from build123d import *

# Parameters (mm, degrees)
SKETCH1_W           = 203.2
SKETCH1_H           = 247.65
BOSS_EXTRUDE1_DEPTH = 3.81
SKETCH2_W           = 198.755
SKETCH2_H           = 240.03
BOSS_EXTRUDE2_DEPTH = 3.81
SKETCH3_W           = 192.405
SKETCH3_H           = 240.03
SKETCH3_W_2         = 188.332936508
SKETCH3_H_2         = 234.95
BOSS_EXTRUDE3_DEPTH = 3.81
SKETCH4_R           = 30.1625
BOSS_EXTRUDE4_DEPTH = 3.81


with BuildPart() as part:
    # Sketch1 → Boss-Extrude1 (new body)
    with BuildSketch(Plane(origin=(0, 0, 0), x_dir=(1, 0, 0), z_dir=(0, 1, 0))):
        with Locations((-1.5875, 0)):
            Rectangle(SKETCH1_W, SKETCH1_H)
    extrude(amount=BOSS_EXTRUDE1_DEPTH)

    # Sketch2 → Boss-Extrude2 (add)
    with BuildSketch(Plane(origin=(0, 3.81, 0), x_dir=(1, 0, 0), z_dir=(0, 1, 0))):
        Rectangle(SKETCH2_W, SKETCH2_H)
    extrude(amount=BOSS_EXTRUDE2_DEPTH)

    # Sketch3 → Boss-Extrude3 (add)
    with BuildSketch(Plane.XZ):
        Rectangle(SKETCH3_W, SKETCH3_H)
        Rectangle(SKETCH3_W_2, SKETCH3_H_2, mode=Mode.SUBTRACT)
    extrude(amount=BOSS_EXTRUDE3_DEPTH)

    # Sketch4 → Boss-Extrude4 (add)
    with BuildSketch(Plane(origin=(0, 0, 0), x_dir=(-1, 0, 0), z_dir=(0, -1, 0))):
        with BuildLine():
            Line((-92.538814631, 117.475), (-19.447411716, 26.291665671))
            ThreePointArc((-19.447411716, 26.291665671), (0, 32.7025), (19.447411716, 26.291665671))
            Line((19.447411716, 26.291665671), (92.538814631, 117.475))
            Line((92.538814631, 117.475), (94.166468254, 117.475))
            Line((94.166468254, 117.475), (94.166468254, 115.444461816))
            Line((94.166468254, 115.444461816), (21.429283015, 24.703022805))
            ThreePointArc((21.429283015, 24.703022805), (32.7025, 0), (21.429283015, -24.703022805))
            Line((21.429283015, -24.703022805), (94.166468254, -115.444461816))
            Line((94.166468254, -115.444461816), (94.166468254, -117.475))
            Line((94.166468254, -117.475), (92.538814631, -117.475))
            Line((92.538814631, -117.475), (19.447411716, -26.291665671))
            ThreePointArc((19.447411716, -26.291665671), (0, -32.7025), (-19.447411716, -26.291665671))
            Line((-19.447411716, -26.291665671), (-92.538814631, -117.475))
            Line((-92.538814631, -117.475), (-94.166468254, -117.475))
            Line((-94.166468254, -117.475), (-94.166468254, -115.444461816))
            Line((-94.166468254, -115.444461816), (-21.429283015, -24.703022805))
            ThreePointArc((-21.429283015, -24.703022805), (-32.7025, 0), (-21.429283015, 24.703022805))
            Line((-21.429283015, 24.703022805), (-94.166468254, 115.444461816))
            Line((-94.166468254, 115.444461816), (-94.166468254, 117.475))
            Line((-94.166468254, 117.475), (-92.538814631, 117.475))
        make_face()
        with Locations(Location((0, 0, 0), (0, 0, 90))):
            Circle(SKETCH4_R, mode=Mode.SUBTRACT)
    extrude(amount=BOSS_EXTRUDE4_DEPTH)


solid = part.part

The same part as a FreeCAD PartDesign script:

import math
import FreeCAD as App
import Part
import Sketcher

V = App.Vector
Q = App.Units.Quantity


def add_polygon(sketch, points):
    """Adds a closed chain of lines whose ends are joined by coincident constraints."""
    first, n = sketch.GeometryCount, len(points)
    for a, b in zip(points, points[1:] + points[:1]):
        sketch.addGeometry(Part.LineSegment(App.Vector(*a, 0), App.Vector(*b, 0)), False)
    for i in range(n):
        sketch.addConstraint(Sketcher.Constraint("Coincident", first + i, 2, first + (i + 1) % n, 1))

doc = App.newDocument("Part")
body = doc.addObject("PartDesign::Body", "Body")

# Sketch on XZ plane
sketch1 = body.newObject("Sketcher::SketchObject", "Sketch")
sketch1.AttachmentSupport = (doc.getObject("XZ_Plane"), [""])
sketch1.MapMode = "FlatFace"
add_polygon(sketch1, [(-103, -124), (-103, 124), (100, 124), (100, -124)])  # lines 0-3
sketch1.addConstraint(Sketcher.Constraint("Vertical", 0))
sketch1.addConstraint(Sketcher.Constraint("Horizontal", 1))
sketch1.addConstraint(Sketcher.Constraint("Vertical", 2))
sketch1.addConstraint(Sketcher.Constraint("Horizontal", 3))
sketch1.addConstraint(Sketcher.Constraint("DistanceX", 1, 1, 1, 2, Q("8 in")))
sketch1.addConstraint(Sketcher.Constraint("DistanceY", 0, 1, 0, 2, Q("9.75 in")))
sketch1.addConstraint(Sketcher.Constraint("DistanceX", 0, 2, -1, 1, Q("4.0625 in")))
sketch1.addConstraint(Sketcher.Constraint("DistanceY", -1, 1, 0, 2, Q("4.875 in")))
pad1 = body.newObject("PartDesign::Pad", "Pad")
pad1.Profile = sketch1
pad1.Length = Q("0.15 in")
pad1.Reversed = True

# Sketch on XZ plane
sketch2 = body.newObject("Sketcher::SketchObject", "Sketch001")
sketch2.AttachmentSupport = (doc.getObject("XZ_Plane"), [""])
sketch2.MapMode = "FlatFace"
sketch2.AttachmentOffset = App.Placement(V(0, 0, -0.15 * 25.4), App.Rotation())
add_polygon(sketch2, [(-99, -120), (-99, 120), (99, 120), (99, -120)])  # lines 0-3
sketch2.addConstraint(Sketcher.Constraint("Vertical", 0))
sketch2.addConstraint(Sketcher.Constraint("Horizontal", 1))
sketch2.addConstraint(Sketcher.Constraint("Vertical", 2))
sketch2.addConstraint(Sketcher.Constraint("Horizontal", 3))
sketch2.addConstraint(Sketcher.Constraint("Symmetric", 0, 2, 2, 2, -1, 1))
sketch2.addConstraint(Sketcher.Constraint("DistanceY", 0, 1, 0, 2, Q("9.45 in")))
sketch2.addConstraint(Sketcher.Constraint("DistanceX", 1, 1, 1, 2, Q("7.825 in")))
pad2 = body.newObject("PartDesign::Pad", "Pad001")
pad2.Profile = sketch2
pad2.Length = Q("0.15 in")
pad2.Reversed = True

# Sketch on XZ plane
sketch3 = body.newObject("Sketcher::SketchObject", "Sketch002")
sketch3.AttachmentSupport = (doc.getObject("XZ_Plane"), [""])
sketch3.MapMode = "FlatFace"
add_polygon(sketch3, [(-96, 120), (-96, -120), (96, -120), (96, 120)])  # lines 0-3
add_polygon(sketch3, [(94, -117), (-94, -117), (-94, 117), (94, 117)])  # lines 4-7
sketch3.addConstraint(Sketcher.Constraint("Vertical", 0))
sketch3.addConstraint(Sketcher.Constraint("Horizontal", 1))
sketch3.addConstraint(Sketcher.Constraint("Vertical", 2))
sketch3.addConstraint(Sketcher.Constraint("Horizontal", 3))
sketch3.addConstraint(Sketcher.Constraint("Horizontal", 4))
sketch3.addConstraint(Sketcher.Constraint("Vertical", 5))
sketch3.addConstraint(Sketcher.Constraint("Horizontal", 6))
sketch3.addConstraint(Sketcher.Constraint("Vertical", 7))
sketch3.addConstraint(Sketcher.Constraint("Symmetric", 0, 2, 2, 2, -1, 1))
sketch3.addConstraint(Sketcher.Constraint("Symmetric", 4, 2, 6, 2, -1, 1))
sketch3.addConstraint(Sketcher.Constraint("DistanceY", 0, 2, 0, 1, Q("9.45 in")))
sketch3.addConstraint(Sketcher.Constraint("DistanceY", 5, 1, 5, 2, Q("9.25 in")))
sketch3.addConstraint(Sketcher.Constraint("DistanceX", 1, 1, 1, 2, Q("7.575 in")))
sketch3.addConstraint(Sketcher.Constraint("DistanceX", 4, 2, 4, 1, Q("188.332937 mm")))
pad3 = body.newObject("PartDesign::Pad", "Pad002")
pad3.Profile = sketch3
pad3.Length = Q("0.15 in")

# Sketch on XZ plane
sketch4 = body.newObject("Sketcher::SketchObject", "Sketch003")
sketch4.AttachmentSupport = (doc.getObject("XZ_Plane"), [""])
sketch4.MapMode = "FlatFace"
sketch4.addGeometry(Part.LineSegment(V(19.4, -26.3, 0), V(92.5, -117.5, 0)), False)
sketch4.addGeometry(Part.LineSegment(V(92.5, -117.5, 0), V(94.2, -117.5, 0)), False)
sketch4.addGeometry(Part.LineSegment(V(94.2, -117.5, 0), V(94.2, -115.4, 0)), False)
sketch4.addGeometry(Part.LineSegment(V(94.2, -115.4, 0), V(21.4, -24.7, 0)), False)
sketch4.addGeometry(Part.ArcOfCircle(Part.Circle(V(0, 0, 0), V(0, 0, 1), 32.7), math.radians(-49), math.radians(49)), False)
sketch4.addGeometry(Part.LineSegment(V(21.4, 24.7, 0), V(94.2, 115.4, 0)), False)
sketch4.addGeometry(Part.LineSegment(V(94.2, 115.4, 0), V(94.2, 117.5, 0)), False)
sketch4.addGeometry(Part.LineSegment(V(94.2, 117.5, 0), V(92.5, 117.5, 0)), False)
sketch4.addGeometry(Part.LineSegment(V(92.5, 117.5, 0), V(19.4, 26.3, 0)), False)
sketch4.addGeometry(Part.ArcOfCircle(Part.Circle(V(0, 0, 0), V(0, 0, 1), 32.7), math.radians(54), math.radians(126)), False)
sketch4.addGeometry(Part.LineSegment(V(-19.4, 26.3, 0), V(-92.5, 117.5, 0)), False)
sketch4.addGeometry(Part.LineSegment(V(-92.5, 117.5, 0), V(-94.2, 117.5, 0)), False)
sketch4.addGeometry(Part.LineSegment(V(-94.2, 117.5, 0), V(-94.2, 115.4, 0)), False)
sketch4.addGeometry(Part.LineSegment(V(-94.2, 115.4, 0), V(-21.4, 24.7, 0)), False)
sketch4.addGeometry(Part.ArcOfCircle(Part.Circle(V(0, 0, 0), V(0, 0, 1), 32.7), math.radians(131), math.radians(229)), False)
sketch4.addGeometry(Part.LineSegment(V(-21.4, -24.7, 0), V(-94.2, -115.4, 0)), False)
sketch4.addGeometry(Part.LineSegment(V(-94.2, -115.4, 0), V(-94.2, -117.5, 0)), False)
sketch4.addGeometry(Part.LineSegment(V(-94.2, -117.5, 0), V(-92.5, -117.5, 0)), False)
sketch4.addGeometry(Part.LineSegment(V(-92.5, -117.5, 0), V(-19.4, -26.3, 0)), False)
sketch4.addGeometry(Part.ArcOfCircle(Part.Circle(V(0, 0, 0), V(0, 0, 1), 32.7), math.radians(-126), math.radians(-54)), False)
sketch4.addGeometry(Part.Circle(V(0, 0, 0), V(0, 0, 1), 30.2), False)
sketch4.addConstraint(Sketcher.Constraint("Coincident", 0, 2, 1, 1))
sketch4.addConstraint(Sketcher.Constraint("Coincident", 1, 2, 2, 1))
sketch4.addConstraint(Sketcher.Constraint("Coincident", 2, 2, 3, 1))
sketch4.addConstraint(Sketcher.Constraint("Coincident", 3, 2, 4, 1))
sketch4.addConstraint(Sketcher.Constraint("Coincident", 4, 2, 5, 1))
sketch4.addConstraint(Sketcher.Constraint("Coincident", 5, 2, 6, 1))
sketch4.addConstraint(Sketcher.Constraint("Coincident", 6, 2, 7, 1))
sketch4.addConstraint(Sketcher.Constraint("Coincident", 7, 2, 8, 1))
sketch4.addConstraint(Sketcher.Constraint("Coincident", 8, 2, 9, 1))
sketch4.addConstraint(Sketcher.Constraint("Coincident", 9, 2, 10, 1))
sketch4.addConstraint(Sketcher.Constraint("Coincident", 10, 2, 11, 1))
sketch4.addConstraint(Sketcher.Constraint("Coincident", 11, 2, 12, 1))
sketch4.addConstraint(Sketcher.Constraint("Coincident", 12, 2, 13, 1))
sketch4.addConstraint(Sketcher.Constraint("Coincident", 13, 2, 14, 1))
sketch4.addConstraint(Sketcher.Constraint("Coincident", 14, 2, 15, 1))
sketch4.addConstraint(Sketcher.Constraint("Coincident", 15, 2, 16, 1))
sketch4.addConstraint(Sketcher.Constraint("Coincident", 16, 2, 17, 1))
sketch4.addConstraint(Sketcher.Constraint("Coincident", 17, 2, 18, 1))
sketch4.addConstraint(Sketcher.Constraint("Coincident", 18, 2, 19, 1))
sketch4.addConstraint(Sketcher.Constraint("Coincident", 19, 2, 0, 1))
sketch4.addConstraint(Sketcher.Constraint("Horizontal", 1))
sketch4.addConstraint(Sketcher.Constraint("Vertical", 2))
sketch4.addConstraint(Sketcher.Constraint("Vertical", 6))
sketch4.addConstraint(Sketcher.Constraint("Horizontal", 7))
sketch4.addConstraint(Sketcher.Constraint("Horizontal", 11))
sketch4.addConstraint(Sketcher.Constraint("Vertical", 12))
sketch4.addConstraint(Sketcher.Constraint("Vertical", 16))
sketch4.addConstraint(Sketcher.Constraint("Horizontal", 17))
sketch4.addConstraint(Sketcher.Constraint("Coincident", 4, 3, -1, 1))
sketch4.addConstraint(Sketcher.Constraint("Coincident", 9, 3, -1, 1))
sketch4.addConstraint(Sketcher.Constraint("Coincident", 14, 3, -1, 1))
sketch4.addConstraint(Sketcher.Constraint("Coincident", 19, 3, -1, 1))
sketch4.addConstraint(Sketcher.Constraint("Coincident", 20, 3, -1, 1))
sketch4.addConstraint(Sketcher.Constraint("Equal", 4, 9))
sketch4.addConstraint(Sketcher.Constraint("Equal", 9, 14))
sketch4.addConstraint(Sketcher.Constraint("Equal", 14, 19))
sketch4.addConstraint(Sketcher.Constraint("Symmetric", 0, 2, 10, 2, -1, 1))
sketch4.addConstraint(Sketcher.Constraint("Symmetric", 2, 2, 12, 2, -1, 1))
sketch4.addConstraint(Sketcher.Constraint("Symmetric", 5, 2, 15, 2, -1, 1))
sketch4.addConstraint(Sketcher.Constraint("Symmetric", 7, 2, 17, 2, -1, 1))
sketch4.addConstraint(Sketcher.Constraint("Symmetric", 7, 2, 10, 2, -2))
sketch4.addConstraint(Sketcher.Constraint("Symmetric", 5, 2, 12, 2, -2))
sketch4.addConstraint(Sketcher.Constraint("Parallel", 0, 3))
sketch4.addConstraint(Sketcher.Constraint("Parallel", 5, 8))
sketch4.addConstraint(Sketcher.Constraint("Parallel", 3, 10))
sketch4.addConstraint(Sketcher.Constraint("Parallel", 10, 13))
sketch4.addConstraint(Sketcher.Constraint("Parallel", 8, 15))
sketch4.addConstraint(Sketcher.Constraint("Parallel", 15, 18))
sketch4.addConstraint(Sketcher.Constraint("Horizontal", 8, 2, 9, 2))
sketch4.addConstraint(Sketcher.Constraint("Diameter", 20, Q("2.375 in")))
sketch4.addConstraint(Sketcher.Constraint("Radius", 4, Q("1.2875 in")))
sketch4.addConstraint(Sketcher.Constraint("DistanceY", 0, 2, -1, 1, Q("4.625 in")))
sketch4.addConstraint(Sketcher.Constraint("DistanceY", 2, 1, 2, 2, Q("2.030538 mm")))
sketch4.addConstraint(Sketcher.Constraint("DistanceX", 1, 1, 1, 2, Q("1.627654 mm")))
sketch4.addConstraint(Sketcher.Constraint("DistanceX", -1, 1, 1, 2, Q("94.166468 mm")))
sketch4.addConstraint(Sketcher.Constraint("DistanceX", -1, 1, 8, 2, Q("19.447412 mm")))
pad4 = body.newObject("PartDesign::Pad", "Pad003")
pad4.Profile = sketch4
pad4.Length = Q("0.15 in")

doc.recompute()
